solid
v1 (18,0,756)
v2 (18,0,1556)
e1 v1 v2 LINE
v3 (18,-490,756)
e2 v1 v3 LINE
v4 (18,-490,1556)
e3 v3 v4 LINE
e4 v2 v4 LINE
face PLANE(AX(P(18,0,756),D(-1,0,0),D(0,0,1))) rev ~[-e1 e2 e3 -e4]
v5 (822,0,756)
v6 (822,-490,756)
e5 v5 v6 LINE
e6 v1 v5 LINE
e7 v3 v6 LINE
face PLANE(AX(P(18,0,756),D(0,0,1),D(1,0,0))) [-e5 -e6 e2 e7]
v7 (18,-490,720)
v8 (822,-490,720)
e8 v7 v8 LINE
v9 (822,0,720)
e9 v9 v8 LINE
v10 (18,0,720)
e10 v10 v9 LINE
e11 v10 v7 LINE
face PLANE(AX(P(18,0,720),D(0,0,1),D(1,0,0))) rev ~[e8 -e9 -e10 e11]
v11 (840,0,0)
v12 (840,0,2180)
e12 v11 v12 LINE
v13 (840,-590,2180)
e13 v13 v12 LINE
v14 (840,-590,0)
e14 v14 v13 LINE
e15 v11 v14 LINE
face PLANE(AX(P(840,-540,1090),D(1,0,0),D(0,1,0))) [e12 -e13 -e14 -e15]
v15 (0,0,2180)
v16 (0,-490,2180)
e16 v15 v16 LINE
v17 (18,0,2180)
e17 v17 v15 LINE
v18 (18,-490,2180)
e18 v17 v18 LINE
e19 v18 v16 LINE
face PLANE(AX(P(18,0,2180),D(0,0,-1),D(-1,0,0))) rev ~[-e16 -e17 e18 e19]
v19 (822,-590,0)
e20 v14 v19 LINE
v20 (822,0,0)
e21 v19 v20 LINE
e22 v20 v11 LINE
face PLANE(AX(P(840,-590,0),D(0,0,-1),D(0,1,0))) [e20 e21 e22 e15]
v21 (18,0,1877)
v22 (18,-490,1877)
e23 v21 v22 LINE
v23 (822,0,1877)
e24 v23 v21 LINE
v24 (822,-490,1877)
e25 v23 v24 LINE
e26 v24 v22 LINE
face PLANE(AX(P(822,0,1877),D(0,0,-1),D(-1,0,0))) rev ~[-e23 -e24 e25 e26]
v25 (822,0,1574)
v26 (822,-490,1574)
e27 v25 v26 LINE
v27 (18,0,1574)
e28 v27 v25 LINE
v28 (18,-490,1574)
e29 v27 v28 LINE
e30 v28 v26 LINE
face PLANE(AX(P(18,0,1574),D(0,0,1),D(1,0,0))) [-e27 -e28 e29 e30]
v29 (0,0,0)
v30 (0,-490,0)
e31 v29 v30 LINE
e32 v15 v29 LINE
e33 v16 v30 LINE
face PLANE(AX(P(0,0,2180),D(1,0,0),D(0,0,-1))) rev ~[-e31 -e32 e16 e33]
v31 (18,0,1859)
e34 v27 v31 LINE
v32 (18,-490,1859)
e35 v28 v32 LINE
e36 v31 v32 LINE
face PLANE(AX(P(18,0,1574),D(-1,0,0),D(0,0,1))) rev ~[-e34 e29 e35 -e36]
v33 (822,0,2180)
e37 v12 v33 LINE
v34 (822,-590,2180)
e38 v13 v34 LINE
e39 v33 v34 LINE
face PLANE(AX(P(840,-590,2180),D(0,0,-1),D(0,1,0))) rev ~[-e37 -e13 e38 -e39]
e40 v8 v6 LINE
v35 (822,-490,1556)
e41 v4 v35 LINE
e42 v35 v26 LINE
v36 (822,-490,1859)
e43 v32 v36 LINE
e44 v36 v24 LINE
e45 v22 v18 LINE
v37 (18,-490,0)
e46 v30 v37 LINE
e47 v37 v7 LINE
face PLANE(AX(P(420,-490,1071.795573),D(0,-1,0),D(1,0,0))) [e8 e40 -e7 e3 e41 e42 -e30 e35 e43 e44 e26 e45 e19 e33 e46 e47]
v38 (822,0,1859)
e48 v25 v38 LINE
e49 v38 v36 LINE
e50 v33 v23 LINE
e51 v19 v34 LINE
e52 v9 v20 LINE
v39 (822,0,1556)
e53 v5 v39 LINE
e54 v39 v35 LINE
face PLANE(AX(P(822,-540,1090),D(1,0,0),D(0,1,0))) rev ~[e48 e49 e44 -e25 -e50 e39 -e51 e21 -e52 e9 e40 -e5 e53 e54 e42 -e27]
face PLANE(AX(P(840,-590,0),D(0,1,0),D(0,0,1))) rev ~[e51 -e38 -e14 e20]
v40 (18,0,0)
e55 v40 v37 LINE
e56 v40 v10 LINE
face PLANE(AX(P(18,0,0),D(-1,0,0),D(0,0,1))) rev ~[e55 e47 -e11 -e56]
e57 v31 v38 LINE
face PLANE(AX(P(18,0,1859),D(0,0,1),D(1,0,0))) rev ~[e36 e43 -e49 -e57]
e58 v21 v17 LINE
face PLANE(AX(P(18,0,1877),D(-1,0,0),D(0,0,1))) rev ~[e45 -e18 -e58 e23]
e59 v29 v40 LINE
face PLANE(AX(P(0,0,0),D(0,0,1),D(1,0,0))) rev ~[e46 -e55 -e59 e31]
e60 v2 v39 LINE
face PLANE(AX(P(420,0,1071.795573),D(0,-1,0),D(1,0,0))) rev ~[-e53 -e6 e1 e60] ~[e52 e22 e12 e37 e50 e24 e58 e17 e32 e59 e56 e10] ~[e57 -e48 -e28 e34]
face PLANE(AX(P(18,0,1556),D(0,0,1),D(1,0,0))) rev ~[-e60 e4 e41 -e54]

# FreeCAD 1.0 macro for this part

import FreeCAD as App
import Part
import Sketcher
from FreeCAD import Vector
Q = App.Units.Quantity


def add_polygon(sketch, points):
    """Adds a closed chain of lines whose ends are joined by coincident constraints."""
    first, n = sketch.GeometryCount, len(points)
    for a, b in zip(points, points[1:] + points[:1]):
        sketch.addGeometry(Part.LineSegment(App.Vector(*a, 0), App.Vector(*b, 0)), False)
    for i in range(n):
        sketch.addConstraint(Sketcher.Constraint("Coincident", first + i, 2, first + (i + 1) % n, 1))

doc = App.newDocument("Part")
body = doc.addObject("PartDesign::Body", "Body")

sketch1 = body.newObject("Sketcher::SketchObject", "Sketch")
sketch1.AttachmentSupport = (doc.getObject("XZ_Plane"), [""])
sketch1.MapMode = "FlatFace"
add_polygon(sketch1, [(0, 2180), (0, 0), (18, 0), (18, 720), (822, 720), (822, 0), (840, 0), (840, 2180), (822, 2180), (822, 1877), (18, 1877), (18, 2180)])
add_polygon(sketch1, [(822, 756), (18, 756), (18, 1556), (822, 1556)])
add_polygon(sketch1, [(822, 1574), (18, 1574), (18, 1859), (822, 1859)])
sketch1.addConstraint([
    Sketcher.Constraint("Vertical", 0),
    Sketcher.Constraint("Horizontal", 1),
    Sketcher.Constraint("Vertical", 2),
    Sketcher.Constraint("Horizontal", 3),
    Sketcher.Constraint("Vertical", 4),
    Sketcher.Constraint("Horizontal", 5),
    Sketcher.Constraint("Vertical", 6),
    Sketcher.Constraint("Horizontal", 7),
    Sketcher.Constraint("Vertical", 8),
    Sketcher.Constraint("Horizontal", 9),
    Sketcher.Constraint("Vertical", 10),
    Sketcher.Constraint("Horizontal", 11),
    Sketcher.Constraint("Horizontal", 12),
    Sketcher.Constraint("Vertical", 13),
    Sketcher.Constraint("Horizontal", 14),
    Sketcher.Constraint("Vertical", 15),
    Sketcher.Constraint("Horizontal", 16),
    Sketcher.Constraint("Vertical", 17),
    Sketcher.Constraint("Horizontal", 18),
    Sketcher.Constraint("Vertical", 19),
    Sketcher.Constraint("Coincident", 0, 2, -1, 1),
    Sketcher.Constraint("PointOnObject", 4, 2, -1),
    Sketcher.Constraint("Horizontal", 7, 2, 10, 2),
    Sketcher.Constraint("Vertical", 4, 2, 7, 2),
    Sketcher.Constraint("Vertical", 2, 2, 9, 2),
    Sketcher.Constraint("Vertical", 10, 2, 12, 2),
    Sketcher.Constraint("Vertical", 8, 2, 14, 2),
    Sketcher.Constraint("Vertical", 13, 2, 16, 2),
    Sketcher.Constraint("Vertical", 15, 2, 18, 2),
    Sketcher.Constraint("Equal", 1, 5),
    Sketcher.Constraint("DistanceX", 1, 1, 1, 2, Q("18 mm")),
    Sketcher.Constraint("DistanceX", 3, 1, 3, 2, Q("804 mm")),
    Sketcher.Constraint("DistanceY", 0, 2, 0, 1, Q("2180 mm")),
    Sketcher.Constraint("DistanceY", 2, 1, 2, 2, Q("720 mm")),
    Sketcher.Constraint("DistanceY", 8, 2, 8, 1, Q("303 mm")),
    Sketcher.Constraint("DistanceY", 13, 1, 13, 2, Q("800 mm")),
    Sketcher.Constraint("DistanceY", 17, 1, 17, 2, Q("285 mm")),
    Sketcher.Constraint("DistanceY", -1, 1, 12, 2, Q("756 mm")),
    Sketcher.Constraint("DistanceY", -1, 1, 16, 2, Q("1574 mm")),
])
pad1 = body.newObject("PartDesign::Pad", "Pad")
pad1.Profile = sketch1
pad1.Length = 490

sketch2 = body.newObject("Sketcher::SketchObject", "Sketch001")
sketch2.AttachmentSupport = (doc.getObject("YZ_Plane"), [""])
sketch2.MapMode = "FlatFace"
sketch2.AttachmentOffset = App.Placement(Vector(0, 0, 840), App.Rotation())
add_polygon(sketch2, [(-590, 2180), (-590, 0), (-490, 0), (-490, 2180)])
sketch2.addConstraint([
    Sketcher.Constraint("Vertical", 0),
    Sketcher.Constraint("Horizontal", 1),
    Sketcher.Constraint("Vertical", 2),
    Sketcher.Constraint("Horizontal", 3),
    Sketcher.Constraint("PointOnObject", 0, 2, -1),
    Sketcher.Constraint("DistanceX", 1, 1, 1, 2, Q("100 mm")),
    Sketcher.Constraint("DistanceY", 0, 2, 0, 1, Q("2180 mm")),
    Sketcher.Constraint("DistanceX", 0, 2, -1, 1, Q("590 mm")),
])
pad2 = body.newObject("PartDesign::Pad", "Pad001")
pad2.Profile = sketch2
pad2.Length = 18
pad2.Reversed = True

doc.recompute()
